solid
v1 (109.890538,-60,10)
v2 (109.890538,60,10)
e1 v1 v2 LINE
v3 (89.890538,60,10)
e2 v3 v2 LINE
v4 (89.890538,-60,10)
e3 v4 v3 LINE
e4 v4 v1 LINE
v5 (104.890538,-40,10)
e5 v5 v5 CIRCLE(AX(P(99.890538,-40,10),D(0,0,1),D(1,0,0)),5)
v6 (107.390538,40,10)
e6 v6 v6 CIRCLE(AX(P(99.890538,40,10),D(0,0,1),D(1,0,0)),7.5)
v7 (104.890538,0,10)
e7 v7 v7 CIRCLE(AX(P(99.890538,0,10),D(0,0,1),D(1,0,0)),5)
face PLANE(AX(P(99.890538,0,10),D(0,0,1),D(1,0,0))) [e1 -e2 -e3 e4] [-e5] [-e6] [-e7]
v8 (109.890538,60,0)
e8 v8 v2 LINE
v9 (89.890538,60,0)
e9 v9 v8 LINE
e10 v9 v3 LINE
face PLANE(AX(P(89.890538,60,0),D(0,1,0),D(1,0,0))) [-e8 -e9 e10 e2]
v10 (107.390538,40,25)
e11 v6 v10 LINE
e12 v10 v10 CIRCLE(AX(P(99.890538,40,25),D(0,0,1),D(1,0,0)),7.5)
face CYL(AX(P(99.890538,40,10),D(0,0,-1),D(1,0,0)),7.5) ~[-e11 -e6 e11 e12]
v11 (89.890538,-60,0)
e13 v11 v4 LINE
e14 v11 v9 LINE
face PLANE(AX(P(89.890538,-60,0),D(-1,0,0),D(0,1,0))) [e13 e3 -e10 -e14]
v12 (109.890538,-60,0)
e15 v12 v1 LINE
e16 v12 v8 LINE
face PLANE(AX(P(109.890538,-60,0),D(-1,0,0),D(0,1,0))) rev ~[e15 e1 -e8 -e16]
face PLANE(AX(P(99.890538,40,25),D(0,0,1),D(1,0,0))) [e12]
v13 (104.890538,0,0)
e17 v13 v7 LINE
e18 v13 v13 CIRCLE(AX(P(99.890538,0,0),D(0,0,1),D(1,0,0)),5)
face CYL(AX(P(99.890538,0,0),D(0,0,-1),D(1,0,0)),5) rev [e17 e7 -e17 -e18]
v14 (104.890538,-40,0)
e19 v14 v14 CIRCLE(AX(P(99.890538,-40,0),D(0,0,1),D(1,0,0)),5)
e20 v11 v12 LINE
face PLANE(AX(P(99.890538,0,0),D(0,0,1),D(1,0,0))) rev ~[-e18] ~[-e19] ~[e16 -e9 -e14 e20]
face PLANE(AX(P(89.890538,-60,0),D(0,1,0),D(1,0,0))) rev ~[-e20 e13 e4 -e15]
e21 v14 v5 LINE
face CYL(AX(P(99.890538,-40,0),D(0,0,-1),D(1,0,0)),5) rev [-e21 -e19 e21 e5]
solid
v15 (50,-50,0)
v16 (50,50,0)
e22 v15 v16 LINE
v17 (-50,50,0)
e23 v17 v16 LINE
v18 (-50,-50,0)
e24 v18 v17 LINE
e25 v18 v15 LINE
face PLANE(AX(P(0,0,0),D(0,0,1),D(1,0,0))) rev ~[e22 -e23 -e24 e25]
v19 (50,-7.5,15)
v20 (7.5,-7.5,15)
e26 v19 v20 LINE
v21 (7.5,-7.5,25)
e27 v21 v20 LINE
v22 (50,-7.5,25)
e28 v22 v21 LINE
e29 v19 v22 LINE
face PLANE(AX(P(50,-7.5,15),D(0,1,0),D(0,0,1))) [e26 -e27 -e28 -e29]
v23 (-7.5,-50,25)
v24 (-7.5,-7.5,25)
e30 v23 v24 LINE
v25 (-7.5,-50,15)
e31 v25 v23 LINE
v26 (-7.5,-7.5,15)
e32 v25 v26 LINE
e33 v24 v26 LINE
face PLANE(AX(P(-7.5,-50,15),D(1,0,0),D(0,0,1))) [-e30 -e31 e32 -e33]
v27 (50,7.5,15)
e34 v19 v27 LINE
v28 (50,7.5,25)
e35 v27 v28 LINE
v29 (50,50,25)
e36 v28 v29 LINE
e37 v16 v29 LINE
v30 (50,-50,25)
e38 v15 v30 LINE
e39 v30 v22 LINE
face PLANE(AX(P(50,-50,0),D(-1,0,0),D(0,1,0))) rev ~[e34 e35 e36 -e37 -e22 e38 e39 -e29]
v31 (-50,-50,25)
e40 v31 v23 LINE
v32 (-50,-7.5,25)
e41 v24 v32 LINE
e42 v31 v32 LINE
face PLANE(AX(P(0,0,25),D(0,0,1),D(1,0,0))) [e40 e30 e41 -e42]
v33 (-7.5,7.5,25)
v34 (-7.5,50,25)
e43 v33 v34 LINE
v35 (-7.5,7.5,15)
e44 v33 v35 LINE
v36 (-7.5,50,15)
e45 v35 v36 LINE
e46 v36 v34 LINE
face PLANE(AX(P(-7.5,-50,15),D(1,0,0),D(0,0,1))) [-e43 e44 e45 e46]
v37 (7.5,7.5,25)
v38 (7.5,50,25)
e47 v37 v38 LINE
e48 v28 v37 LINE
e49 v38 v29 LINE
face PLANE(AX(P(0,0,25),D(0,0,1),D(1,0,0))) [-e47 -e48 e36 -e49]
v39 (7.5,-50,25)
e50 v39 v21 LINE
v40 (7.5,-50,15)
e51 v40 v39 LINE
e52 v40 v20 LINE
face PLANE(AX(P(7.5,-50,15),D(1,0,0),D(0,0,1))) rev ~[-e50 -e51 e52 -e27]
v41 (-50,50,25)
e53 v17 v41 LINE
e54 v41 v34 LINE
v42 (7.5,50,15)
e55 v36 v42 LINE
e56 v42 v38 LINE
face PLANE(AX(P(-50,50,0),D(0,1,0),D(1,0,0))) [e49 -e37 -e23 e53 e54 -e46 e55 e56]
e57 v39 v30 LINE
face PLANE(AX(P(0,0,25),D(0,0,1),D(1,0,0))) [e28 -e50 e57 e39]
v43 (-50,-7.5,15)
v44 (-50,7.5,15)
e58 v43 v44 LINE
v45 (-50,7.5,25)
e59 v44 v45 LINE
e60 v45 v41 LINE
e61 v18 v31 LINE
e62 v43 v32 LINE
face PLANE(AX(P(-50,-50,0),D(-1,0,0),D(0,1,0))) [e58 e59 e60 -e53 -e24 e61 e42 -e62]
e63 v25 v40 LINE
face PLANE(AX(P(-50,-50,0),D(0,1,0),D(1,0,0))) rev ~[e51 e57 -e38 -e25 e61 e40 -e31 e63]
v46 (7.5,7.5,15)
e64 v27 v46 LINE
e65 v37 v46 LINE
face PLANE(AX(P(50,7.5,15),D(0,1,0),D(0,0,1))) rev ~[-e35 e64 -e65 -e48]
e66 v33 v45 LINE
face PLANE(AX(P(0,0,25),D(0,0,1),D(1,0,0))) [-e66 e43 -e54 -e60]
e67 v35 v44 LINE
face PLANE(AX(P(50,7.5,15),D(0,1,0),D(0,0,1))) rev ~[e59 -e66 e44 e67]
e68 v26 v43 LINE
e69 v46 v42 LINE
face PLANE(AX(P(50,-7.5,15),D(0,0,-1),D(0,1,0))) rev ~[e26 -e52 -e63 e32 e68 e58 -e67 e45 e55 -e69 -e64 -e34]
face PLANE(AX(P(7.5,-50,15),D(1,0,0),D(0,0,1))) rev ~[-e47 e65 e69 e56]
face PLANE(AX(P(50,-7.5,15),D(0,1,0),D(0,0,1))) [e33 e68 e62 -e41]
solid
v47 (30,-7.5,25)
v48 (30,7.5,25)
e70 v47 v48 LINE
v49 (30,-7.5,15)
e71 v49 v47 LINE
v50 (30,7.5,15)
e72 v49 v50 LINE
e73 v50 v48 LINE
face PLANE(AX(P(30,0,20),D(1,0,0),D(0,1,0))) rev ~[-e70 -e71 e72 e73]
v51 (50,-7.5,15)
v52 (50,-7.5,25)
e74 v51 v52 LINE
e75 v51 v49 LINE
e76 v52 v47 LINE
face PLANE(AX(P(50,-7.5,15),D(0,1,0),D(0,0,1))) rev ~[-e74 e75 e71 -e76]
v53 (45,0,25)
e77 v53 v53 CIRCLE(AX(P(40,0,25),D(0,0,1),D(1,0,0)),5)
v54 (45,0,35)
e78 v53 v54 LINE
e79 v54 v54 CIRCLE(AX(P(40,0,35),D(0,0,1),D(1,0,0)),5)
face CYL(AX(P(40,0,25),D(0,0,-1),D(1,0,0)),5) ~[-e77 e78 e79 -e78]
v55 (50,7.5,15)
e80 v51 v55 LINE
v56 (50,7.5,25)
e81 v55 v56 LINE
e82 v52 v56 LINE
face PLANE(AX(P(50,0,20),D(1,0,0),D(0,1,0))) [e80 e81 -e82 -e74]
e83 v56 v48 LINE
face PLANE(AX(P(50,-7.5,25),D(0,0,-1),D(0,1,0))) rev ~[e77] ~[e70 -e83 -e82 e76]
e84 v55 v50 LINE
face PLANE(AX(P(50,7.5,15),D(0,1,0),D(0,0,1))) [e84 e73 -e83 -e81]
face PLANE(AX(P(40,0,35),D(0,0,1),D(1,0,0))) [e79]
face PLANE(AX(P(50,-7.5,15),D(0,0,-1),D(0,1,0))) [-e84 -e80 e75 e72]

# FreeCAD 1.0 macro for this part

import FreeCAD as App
import Part
import Sketcher
Q = App.Units.Quantity


def add_polygon(sketch, points):
    """Adds a closed chain of lines whose ends are joined by coincident constraints."""
    first, n = sketch.GeometryCount, len(points)
    for a, b in zip(points, points[1:] + points[:1]):
        sketch.addGeometry(Part.LineSegment(App.Vector(*a, 0), App.Vector(*b, 0)), False)
    for i in range(n):
        sketch.addConstraint(Sketcher.Constraint("Coincident", first + i, 2, first + (i + 1) % n, 1))

doc = App.newDocument("Part")
body = doc.addObject("PartDesign::Body", "Body")

sketch1 = body.newObject("Sketcher::SketchObject", "Sketch")
sketch1.AttachmentSupport = (doc.getObject("XY_Plane"), [""])
sketch1.MapMode = "FlatFace"
add_polygon(sketch1, [(-50, 50), (-50, -50), (50, -50), (50, 50)])
sketch1.addConstraint([
    Sketcher.Constraint("Vertical", 0),
    Sketcher.Constraint("Horizontal", 1),
    Sketcher.Constraint("Vertical", 2),
    Sketcher.Constraint("Horizontal", 3),
    Sketcher.Constraint("Symmetric", 0, 2, 2, 2, -1, 1),
    Sketcher.Constraint("Equal", 3, 0),
    Sketcher.Constraint("DistanceX", 1, 1, 1, 2, Q("100 mm")),
])
pad1 = body.newObject("PartDesign::Pad", "Pad")
pad1.Profile = sketch1
pad1.Length = 25

sketch2 = body.newObject("Sketcher::SketchObject", "Sketch001")
sketch2.AttachmentSupport = (doc.getObject("YZ_Plane"), [""])
sketch2.MapMode = "FlatFace"
sketch2.AttachmentOffset = App.Placement(App.Vector(0, 0, 50), App.Rotation())
add_polygon(sketch2, [(-8, 25), (-8, 15), (8, 15), (8, 25)])
sketch2.addConstraint([
    Sketcher.Constraint("Vertical", 0),
    Sketcher.Constraint("Horizontal", 1),
    Sketcher.Constraint("Vertical", 2),
    Sketcher.Constraint("Horizontal", 3),
    Sketcher.Constraint("DistanceX", 1, 1, 1, 2, Q("15 mm")),
    Sketcher.Constraint("DistanceY", 0, 2, 0, 1, Q("10 mm")),
    Sketcher.Constraint("DistanceY", -1, 1, 0, 2, Q("15 mm")),
    Sketcher.Constraint("DistanceX", 0, 2, -1, 1, Q("7.5 mm")),
])
pocket1 = body.newObject("PartDesign::Pocket", "Pocket")
pocket1.Profile = sketch2
pocket1.Type = "ThroughAll"

sketch3 = body.newObject("Sketcher::SketchObject", "Sketch002")
sketch3.AttachmentSupport = (doc.getObject("XZ_Plane"), [""])
sketch3.MapMode = "FlatFace"
sketch3.AttachmentOffset = App.Placement(App.Vector(0, 0, 50), App.Rotation())
add_polygon(sketch3, [(-8, 25), (-8, 15), (8, 15), (8, 25)])
sketch3.addConstraint([
    Sketcher.Constraint("Vertical", 0),
    Sketcher.Constraint("Horizontal", 1),
    Sketcher.Constraint("Vertical", 2),
    Sketcher.Constraint("Horizontal", 3),
    Sketcher.Constraint("DistanceX", 1, 1, 1, 2, Q("15 mm")),
    Sketcher.Constraint("DistanceY", 0, 2, 0, 1, Q("10 mm")),
    Sketcher.Constraint("DistanceY", -1, 1, 0, 2, Q("15 mm")),
    Sketcher.Constraint("DistanceX", 0, 2, -1, 1, Q("7.5 mm")),
])
pocket2 = body.newObject("PartDesign::Pocket", "Pocket001")
pocket2.Profile = sketch3
pocket2.Type = "ThroughAll"
body2 = doc.addObject("PartDesign::Body", "Body001")

sketch4 = body2.newObject("Sketcher::SketchObject", "Sketch003")
sketch4.AttachmentSupport = (doc.getObject("YZ_Plane001"), [""])
sketch4.MapMode = "FlatFace"
sketch4.AttachmentOffset = App.Placement(App.Vector(0, 0, 50), App.Rotation())
add_polygon(sketch4, [(-8, 25), (-8, 15), (8, 15), (8, 25)])
sketch4.addConstraint([
    Sketcher.Constraint("Vertical", 0),
    Sketcher.Constraint("Horizontal", 1),
    Sketcher.Constraint("Vertical", 2),
    Sketcher.Constraint("Horizontal", 3),
    Sketcher.Constraint("DistanceX", 1, 1, 1, 2, Q("15 mm")),
    Sketcher.Constraint("DistanceY", 0, 2, 0, 1, Q("10 mm")),
    Sketcher.Constraint("DistanceY", -1, 1, 0, 2, Q("15 mm")),
    Sketcher.Constraint("DistanceX", 0, 2, -1, 1, Q("7.5 mm")),
])
pad2 = body2.newObject("PartDesign::Pad", "Pad001")
pad2.Profile = sketch4
pad2.Length = 20
pad2.Reversed = True

sketch5 = body2.newObject("Sketcher::SketchObject", "Sketch004")
sketch5.AttachmentSupport = (doc.getObject("XY_Plane001"), [""])
sketch5.MapMode = "FlatFace"
sketch5.AttachmentOffset = App.Placement(App.Vector(0, 0, 25), App.Rotation())
sketch5.addGeometry(Part.Circle(App.Vector(40, 0, 0), App.Vector(0, 0, 1), 5), False)
sketch5.addConstraint([
    Sketcher.Constraint("PointOnObject", 0, 3, -1),
    Sketcher.Constraint("Diameter", 0, Q("10 mm")),
    Sketcher.Constraint("DistanceX", -1, 1, 0, 3, Q("40 mm")),
])
pad3 = body2.newObject("PartDesign::Pad", "Pad002")
pad3.Profile = sketch5
pad3.Length = 10
body3 = doc.addObject("PartDesign::Body", "Body002")

sketch6 = body3.newObject("Sketcher::SketchObject", "Sketch005")
sketch6.AttachmentSupport = (doc.getObject("XY_Plane002"), [""])
sketch6.MapMode = "FlatFace"
add_polygon(sketch6, [(90, 60), (90, -60), (110, -60), (110, 60)])
sketch6.addGeometry(Part.Circle(App.Vector(100, -40, 0), App.Vector(0, 0, 1), 5), False)
sketch6.addGeometry(Part.Circle(App.Vector(100, 0, 0), App.Vector(0, 0, 1), 5), False)
sketch6.addConstraint([
    Sketcher.Constraint("Vertical", 0),
    Sketcher.Constraint("Horizontal", 1),
    Sketcher.Constraint("Vertical", 2),
    Sketcher.Constraint("Horizontal", 3),
    Sketcher.Constraint("Equal", 4, 5),
    Sketcher.Constraint("PointOnObject", 5, 3, -1),
    Sketcher.Constraint("Vertical", 4, 3, 5, 3),
    Sketcher.Constraint("Diameter", 4, Q("10 mm")),
    Sketcher.Constraint("DistanceX", 1, 1, 1, 2, Q("20 mm")),
    Sketcher.Constraint("DistanceY", 0, 2, 0, 1, Q("120 mm")),
    Sketcher.Constraint("DistanceY", 4, 3, -1, 1, Q("40 mm")),
    Sketcher.Constraint("DistanceY", 0, 2, -1, 1, Q("60 mm")),
    Sketcher.Constraint("DistanceX", 0, 2, 4, 3, Q("10 mm")),
    Sketcher.Constraint("DistanceX", -1, 1, 4, 3, Q("99.890538 mm")),
])
pad4 = body3.newObject("PartDesign::Pad", "Pad003")
pad4.Profile = sketch6
pad4.Length = 10

sketch7 = body3.newObject("Sketcher::SketchObject", "Sketch006")
sketch7.AttachmentSupport = (doc.getObject("XY_Plane002"), [""])
sketch7.MapMode = "FlatFace"
sketch7.AttachmentOffset = App.Placement(App.Vector(0, 0, 10), App.Rotation())
sketch7.addGeometry(Part.Circle(App.Vector(100, 40, 0), App.Vector(0, 0, 1), 8), False)
sketch7.addConstraint([
    Sketcher.Constraint("Diameter", 0, Q("15 mm")),
    Sketcher.Constraint("DistanceY", -1, 1, 0, 3, Q("40 mm")),
    Sketcher.Constraint("DistanceX", -1, 1, 0, 3, Q("99.890538 mm")),
])
pad5 = body3.newObject("PartDesign::Pad", "Pad004")
pad5.Profile = sketch7
pad5.Length = 15

doc.recompute()
